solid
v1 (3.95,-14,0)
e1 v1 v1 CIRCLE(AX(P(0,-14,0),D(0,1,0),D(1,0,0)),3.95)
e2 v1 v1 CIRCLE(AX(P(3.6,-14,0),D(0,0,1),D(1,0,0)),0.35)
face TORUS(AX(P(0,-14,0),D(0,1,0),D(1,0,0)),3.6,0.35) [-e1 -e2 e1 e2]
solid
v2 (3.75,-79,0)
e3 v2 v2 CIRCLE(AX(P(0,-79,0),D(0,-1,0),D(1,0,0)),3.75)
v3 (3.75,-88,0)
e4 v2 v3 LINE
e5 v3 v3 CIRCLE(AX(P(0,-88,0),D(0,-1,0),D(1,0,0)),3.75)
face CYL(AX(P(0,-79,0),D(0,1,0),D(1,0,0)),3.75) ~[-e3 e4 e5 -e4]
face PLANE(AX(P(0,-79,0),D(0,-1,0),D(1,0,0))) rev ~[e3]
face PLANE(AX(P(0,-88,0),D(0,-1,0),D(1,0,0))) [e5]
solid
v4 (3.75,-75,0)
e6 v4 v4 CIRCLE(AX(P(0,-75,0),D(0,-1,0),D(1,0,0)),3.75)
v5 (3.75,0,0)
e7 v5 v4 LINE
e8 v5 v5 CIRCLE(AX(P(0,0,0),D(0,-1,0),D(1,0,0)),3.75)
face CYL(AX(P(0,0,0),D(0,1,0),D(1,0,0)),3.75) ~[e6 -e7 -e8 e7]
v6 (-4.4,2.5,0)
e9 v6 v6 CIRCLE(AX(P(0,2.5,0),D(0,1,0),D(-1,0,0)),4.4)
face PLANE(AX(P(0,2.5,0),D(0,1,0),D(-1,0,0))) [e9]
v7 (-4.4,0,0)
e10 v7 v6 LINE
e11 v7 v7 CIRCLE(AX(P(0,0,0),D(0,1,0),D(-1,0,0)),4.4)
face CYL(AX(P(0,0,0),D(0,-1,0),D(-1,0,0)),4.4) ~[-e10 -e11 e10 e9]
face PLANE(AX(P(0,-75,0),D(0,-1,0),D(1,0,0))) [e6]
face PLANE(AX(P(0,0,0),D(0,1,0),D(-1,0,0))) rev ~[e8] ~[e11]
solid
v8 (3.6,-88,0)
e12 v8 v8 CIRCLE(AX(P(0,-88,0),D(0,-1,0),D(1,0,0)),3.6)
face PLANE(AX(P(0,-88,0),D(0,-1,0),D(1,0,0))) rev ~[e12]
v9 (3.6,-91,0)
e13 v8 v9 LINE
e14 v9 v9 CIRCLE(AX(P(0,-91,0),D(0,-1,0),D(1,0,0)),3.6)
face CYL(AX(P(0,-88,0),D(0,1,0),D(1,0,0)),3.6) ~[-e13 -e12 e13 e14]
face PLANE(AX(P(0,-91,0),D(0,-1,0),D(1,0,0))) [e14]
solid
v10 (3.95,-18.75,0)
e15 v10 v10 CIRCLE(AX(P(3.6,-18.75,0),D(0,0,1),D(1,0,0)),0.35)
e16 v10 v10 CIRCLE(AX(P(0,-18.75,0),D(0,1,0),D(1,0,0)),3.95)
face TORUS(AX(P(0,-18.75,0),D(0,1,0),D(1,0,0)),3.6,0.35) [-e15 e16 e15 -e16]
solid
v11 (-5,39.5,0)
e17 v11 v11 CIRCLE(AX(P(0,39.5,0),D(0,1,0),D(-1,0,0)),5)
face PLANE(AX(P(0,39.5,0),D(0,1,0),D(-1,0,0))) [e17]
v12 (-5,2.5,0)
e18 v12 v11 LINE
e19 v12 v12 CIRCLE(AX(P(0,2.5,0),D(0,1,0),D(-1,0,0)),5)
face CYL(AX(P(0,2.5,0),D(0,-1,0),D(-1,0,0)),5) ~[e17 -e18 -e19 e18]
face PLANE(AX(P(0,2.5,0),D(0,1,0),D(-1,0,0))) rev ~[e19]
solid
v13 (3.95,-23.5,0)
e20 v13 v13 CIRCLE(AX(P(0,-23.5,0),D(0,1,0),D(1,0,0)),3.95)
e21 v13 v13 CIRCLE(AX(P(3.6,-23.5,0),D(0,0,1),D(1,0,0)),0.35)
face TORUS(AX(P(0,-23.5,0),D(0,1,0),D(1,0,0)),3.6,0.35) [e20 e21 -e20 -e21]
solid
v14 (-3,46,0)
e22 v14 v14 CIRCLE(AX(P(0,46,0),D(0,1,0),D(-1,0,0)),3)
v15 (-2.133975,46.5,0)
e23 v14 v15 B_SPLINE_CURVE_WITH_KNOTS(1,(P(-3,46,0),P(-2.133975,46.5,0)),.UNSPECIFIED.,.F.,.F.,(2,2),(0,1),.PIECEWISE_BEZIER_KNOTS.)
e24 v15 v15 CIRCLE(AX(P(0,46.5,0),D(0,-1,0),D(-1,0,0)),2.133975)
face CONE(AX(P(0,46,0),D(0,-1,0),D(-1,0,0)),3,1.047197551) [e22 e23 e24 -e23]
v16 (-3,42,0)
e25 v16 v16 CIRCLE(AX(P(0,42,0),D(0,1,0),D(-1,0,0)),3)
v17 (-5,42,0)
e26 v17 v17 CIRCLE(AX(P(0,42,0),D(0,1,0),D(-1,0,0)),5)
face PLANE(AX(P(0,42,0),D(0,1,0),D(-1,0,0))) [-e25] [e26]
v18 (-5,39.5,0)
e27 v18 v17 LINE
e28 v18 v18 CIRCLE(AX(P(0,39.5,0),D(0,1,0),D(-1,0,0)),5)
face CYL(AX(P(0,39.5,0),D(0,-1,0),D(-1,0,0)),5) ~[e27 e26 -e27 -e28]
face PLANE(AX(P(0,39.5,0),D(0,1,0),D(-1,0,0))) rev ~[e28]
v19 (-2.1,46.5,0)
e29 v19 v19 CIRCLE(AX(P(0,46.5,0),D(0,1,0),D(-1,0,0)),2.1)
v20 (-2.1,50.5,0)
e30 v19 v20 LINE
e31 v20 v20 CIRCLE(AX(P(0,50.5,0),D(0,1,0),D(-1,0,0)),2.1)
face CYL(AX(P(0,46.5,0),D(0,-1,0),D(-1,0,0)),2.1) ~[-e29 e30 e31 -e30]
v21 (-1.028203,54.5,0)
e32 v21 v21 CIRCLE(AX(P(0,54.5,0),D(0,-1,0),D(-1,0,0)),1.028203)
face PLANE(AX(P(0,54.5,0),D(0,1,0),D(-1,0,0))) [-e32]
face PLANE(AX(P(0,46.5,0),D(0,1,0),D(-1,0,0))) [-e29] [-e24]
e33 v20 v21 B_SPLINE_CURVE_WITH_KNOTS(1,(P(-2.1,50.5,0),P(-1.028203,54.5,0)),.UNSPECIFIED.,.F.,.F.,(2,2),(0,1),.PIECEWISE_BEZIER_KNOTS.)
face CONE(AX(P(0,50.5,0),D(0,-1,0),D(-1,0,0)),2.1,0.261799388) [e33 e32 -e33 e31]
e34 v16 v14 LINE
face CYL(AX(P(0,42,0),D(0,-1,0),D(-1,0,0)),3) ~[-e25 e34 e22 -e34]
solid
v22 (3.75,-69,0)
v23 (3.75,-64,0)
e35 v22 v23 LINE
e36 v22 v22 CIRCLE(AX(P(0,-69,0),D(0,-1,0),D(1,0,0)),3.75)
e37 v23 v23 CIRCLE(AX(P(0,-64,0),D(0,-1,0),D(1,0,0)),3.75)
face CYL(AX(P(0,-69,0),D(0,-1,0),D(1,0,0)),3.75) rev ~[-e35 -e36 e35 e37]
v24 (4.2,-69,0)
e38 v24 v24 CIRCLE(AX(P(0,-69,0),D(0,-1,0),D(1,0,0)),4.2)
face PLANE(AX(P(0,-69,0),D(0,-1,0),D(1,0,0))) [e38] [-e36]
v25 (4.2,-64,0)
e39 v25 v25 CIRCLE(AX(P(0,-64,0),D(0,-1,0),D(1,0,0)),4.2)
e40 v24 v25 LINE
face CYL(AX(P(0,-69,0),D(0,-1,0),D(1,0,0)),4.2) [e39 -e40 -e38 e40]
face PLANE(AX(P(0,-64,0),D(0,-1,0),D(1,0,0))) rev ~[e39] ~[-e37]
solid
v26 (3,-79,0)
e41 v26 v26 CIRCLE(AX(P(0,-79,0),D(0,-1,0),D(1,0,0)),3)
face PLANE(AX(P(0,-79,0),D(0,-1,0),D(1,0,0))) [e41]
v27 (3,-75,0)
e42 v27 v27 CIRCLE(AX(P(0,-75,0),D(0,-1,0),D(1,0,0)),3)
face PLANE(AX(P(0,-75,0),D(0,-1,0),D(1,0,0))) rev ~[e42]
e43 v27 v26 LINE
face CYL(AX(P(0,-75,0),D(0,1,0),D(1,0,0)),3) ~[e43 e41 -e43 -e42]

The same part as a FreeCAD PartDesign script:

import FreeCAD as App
import Part
import Sketcher

doc = App.newDocument("Part")
body = doc.addObject("PartDesign::Body", "Body")

# Sketch on XZ plane
sketch1 = doc.addObject("Sketcher::SketchObject", "Sketch")
body.addObject(sketch1)
sketch1.AttachmentSupport = (doc.XZ_Plane, [""])
sketch1.MapMode = "FlatFace"
sketch1.addGeometry(Part.Circle(App.Vector(0, 0, 0), App.Vector(0, 0, 1), 3.8), False)
sketch1.addConstraint([
    Sketcher.Constraint("Coincident", 0, 3, -1, 1),
    Sketcher.Constraint("Diameter", 0, 7.5),
])
pad1 = doc.addObject("PartDesign::Pad", "Pad")
body.addObject(pad1)
pad1.Profile = sketch1
pad1.Length = 75

# Sketch on XZ plane
sketch2 = doc.addObject("Sketcher::SketchObject", "Sketch001")
body.addObject(sketch2)
sketch2.AttachmentSupport = (doc.XZ_Plane, [""])
sketch2.MapMode = "FlatFace"
sketch2.addGeometry(Part.Circle(App.Vector(0, 0, 0), App.Vector(0, 0, 1), 4.4), False)
sketch2.addConstraint([
    Sketcher.Constraint("Coincident", 0, 3, -1, 1),
    Sketcher.Constraint("Diameter", 0, 8.8),
])
pad2 = doc.addObject("PartDesign::Pad", "Pad001")
body.addObject(pad2)
pad2.Profile = sketch2
pad2.Length = 2.5
pad2.Reversed = True
body2 = doc.addObject("PartDesign::Body", "Body001")

# Sketch on XZ plane
sketch3 = doc.addObject("Sketcher::SketchObject", "Sketch002")
body2.addObject(sketch3)
sketch3.AttachmentSupport = (doc.getObject("XZ_Plane001"), [""])
sketch3.MapMode = "FlatFace"
sketch3.AttachmentOffset = App.Placement(App.Vector(0, 0, -2.5), App.Rotation())
sketch3.addGeometry(Part.Circle(App.Vector(0, 0, 0), App.Vector(0, 0, 1), 5), False)
sketch3.addConstraint([
    Sketcher.Constraint("Coincident", 0, 3, -1, 1),
    Sketcher.Constraint("Diameter", 0, 10.0),
])
pad3 = doc.addObject("PartDesign::Pad", "Pad002")
body2.addObject(pad3)
pad3.Profile = sketch3
pad3.Length = 37
pad3.Reversed = True
body3 = doc.addObject("PartDesign::Body", "Body002")

# Sketch on XZ plane
sketch4 = doc.addObject("Sketcher::SketchObject", "Sketch003")
body3.addObject(sketch4)
sketch4.AttachmentSupport = (doc.getObject("XZ_Plane002"), [""])
sketch4.MapMode = "FlatFace"
sketch4.AttachmentOffset = App.Placement(App.Vector(0, 0, -39.5), App.Rotation())
sketch4.addGeometry(Part.Circle(App.Vector(0, 0, 0), App.Vector(0, 0, 1), 5), False)
sketch4.addConstraint([
    Sketcher.Constraint("Coincident", 0, 3, -1, 1),
    Sketcher.Constraint("Diameter", 0, 10.0),
])
pad4 = doc.addObject("PartDesign::Pad", "Pad003")
body3.addObject(pad4)
pad4.Profile = sketch4
pad4.Length = 2.5
pad4.Reversed = True

# Sketch on XZ plane
sketch5 = doc.addObject("Sketcher::SketchObject", "Sketch004")
body3.addObject(sketch5)
sketch5.AttachmentSupport = (doc.getObject("XZ_Plane002"), [""])
sketch5.MapMode = "FlatFace"
sketch5.AttachmentOffset = App.Placement(App.Vector(0, 0, -42), App.Rotation())
sketch5.addGeometry(Part.Circle(App.Vector(0, 0, 0), App.Vector(0, 0, 1), 3), False)
sketch5.addConstraint([
    Sketcher.Constraint("Coincident", 0, 3, -1, 1),
    Sketcher.Constraint("Diameter", 0, 6.0),
])
pad5 = doc.addObject("PartDesign::Pad", "Pad004")
body3.addObject(pad5)
pad5.Profile = sketch5
pad5.Length = 4
pad5.Reversed = True

# Sketch on XZ plane
sketch6 = doc.addObject("Sketcher::SketchObject", "Sketch005")
body3.addObject(sketch6)
sketch6.AttachmentSupport = (doc.getObject("XZ_Plane002"), [""])
sketch6.MapMode = "FlatFace"
sketch6.AttachmentOffset = App.Placement(App.Vector(0, 0, -46), App.Rotation())
sketch6.addGeometry(Part.Circle(App.Vector(0, 0, 0), App.Vector(0, 0, 1), 3), False)
sketch6.addConstraint([
    Sketcher.Constraint("Coincident", 0, 3, -1, 1),
    Sketcher.Constraint("Diameter", 0, 6.0),
])
pad6 = doc.addObject("PartDesign::Pad", "Pad005")
body3.addObject(pad6)
pad6.Profile = sketch6
pad6.Length = 0.5
pad6.Reversed = True
pad6.TaperAngle = -60

# Sketch on XZ plane
sketch7 = doc.addObject("Sketcher::SketchObject", "Sketch006")
body3.addObject(sketch7)
sketch7.AttachmentSupport = (doc.getObject("XZ_Plane002"), [""])
sketch7.MapMode = "FlatFace"
sketch7.AttachmentOffset = App.Placement(App.Vector(0, 0, -46.5), App.Rotation())
sketch7.addGeometry(Part.Circle(App.Vector(0, 0, 0), App.Vector(0, 0, 1), 2.1), False)
sketch7.addConstraint([
    Sketcher.Constraint("Coincident", 0, 3, -1, 1),
    Sketcher.Constraint("Diameter", 0, 4.2),
])
pad7 = doc.addObject("PartDesign::Pad", "Pad006")
body3.addObject(pad7)
pad7.Profile = sketch7
pad7.Length = 4
pad7.Reversed = True

# Sketch on XZ plane
sketch8 = doc.addObject("Sketcher::SketchObject", "Sketch007")
body3.addObject(sketch8)
sketch8.AttachmentSupport = (doc.getObject("XZ_Plane002"), [""])
sketch8.MapMode = "FlatFace"
sketch8.AttachmentOffset = App.Placement(App.Vector(0, 0, -50.5), App.Rotation())
sketch8.addGeometry(Part.Circle(App.Vector(0, 0, 0), App.Vector(0, 0, 1), 2.1), False)
sketch8.addConstraint([
    Sketcher.Constraint("Coincident", 0, 3, -1, 1),
    Sketcher.Constraint("Diameter", 0, 4.2),
])
pad8 = doc.addObject("PartDesign::Pad", "Pad007")
body3.addObject(pad8)
pad8.Profile = sketch8
pad8.Length = 4
pad8.Reversed = True
pad8.TaperAngle = -15
body4 = doc.addObject("PartDesign::Body", "Body003")

# Sketch on XZ plane
sketch9 = doc.addObject("Sketcher::SketchObject", "Sketch008")
body4.addObject(sketch9)
sketch9.AttachmentSupport = (doc.getObject("XZ_Plane003"), [""])
sketch9.MapMode = "FlatFace"
sketch9.AttachmentOffset = App.Placement(App.Vector(0, 0, 75), App.Rotation())
sketch9.addGeometry(Part.Circle(App.Vector(0, 0, 0), App.Vector(0, 0, 1), 3), False)
sketch9.addConstraint([
    Sketcher.Constraint("Coincident", 0, 3, -1, 1),
    Sketcher.Constraint("Diameter", 0, 6.0),
])
pad9 = doc.addObject("PartDesign::Pad", "Pad008")
body4.addObject(pad9)
pad9.Profile = sketch9
pad9.Length = 4
body5 = doc.addObject("PartDesign::Body", "Body004")

# Sketch on XZ plane
sketch10 = doc.addObject("Sketcher::SketchObject", "Sketch009")
body5.addObject(sketch10)
sketch10.AttachmentSupport = (doc.getObject("XZ_Plane004"), [""])
sketch10.MapMode = "FlatFace"
sketch10.AttachmentOffset = App.Placement(App.Vector(0, 0, 79), App.Rotation())
sketch10.addGeometry(Part.Circle(App.Vector(0, 0, 0), App.Vector(0, 0, 1), 3.8), False)
sketch10.addConstraint([
    Sketcher.Constraint("Coincident", 0, 3, -1, 1),
    Sketcher.Constraint("Diameter", 0, 7.5),
])
pad10 = doc.addObject("PartDesign::Pad", "Pad009")
body5.addObject(pad10)
pad10.Profile = sketch10
pad10.Length = 9
body6 = doc.addObject("PartDesign::Body", "Body005")

# Sketch on XZ plane
sketch11 = doc.addObject("Sketcher::SketchObject", "Sketch010")
body6.addObject(sketch11)
sketch11.AttachmentSupport = (doc.getObject("XZ_Plane005"), [""])
sketch11.MapMode = "FlatFace"
sketch11.AttachmentOffset = App.Placement(App.Vector(0, 0, 88), App.Rotation())
sketch11.addGeometry(Part.Circle(App.Vector(0, 0, 0), App.Vector(0, 0, 1), 3.6), False)
sketch11.addConstraint([
    Sketcher.Constraint("Coincident", 0, 3, -1, 1),
    Sketcher.Constraint("Diameter", 0, 7.2),
])
pad11 = doc.addObject("PartDesign::Pad", "Pad010")
body6.addObject(pad11)
pad11.Profile = sketch11
pad11.Length = 3
body7 = doc.addObject("PartDesign::Body", "Body006")

# Sketch on XY plane
sketch12 = doc.addObject("Sketcher::SketchObject", "Sketch011")
body7.addObject(sketch12)
sketch12.AttachmentSupport = (doc.getObject("XY_Plane006"), [""])
sketch12.MapMode = "FlatFace"
sketch12.addGeometry(Part.Circle(App.Vector(3.6, -14, 0), App.Vector(0, 0, 1), 0.35), False)
sketch12.addConstraint([
    Sketcher.Constraint("Diameter", 0, 0.7),
    Sketcher.Constraint("DistanceY", 0, 3, -1, 1, 14.0),
    Sketcher.Constraint("DistanceX", -1, 1, 0, 3, 3.6),
])
revolution = doc.addObject("PartDesign::Revolution", "Revolution")
body7.addObject(revolution)
revolution.Profile = sketch12
revolution.ReferenceAxis = (sketch12, ["V_Axis"])
revolution.Angle = 360
body8 = doc.addObject("PartDesign::Body", "Body007")

# Sketch on XY plane
sketch13 = doc.addObject("Sketcher::SketchObject", "Sketch012")
body8.addObject(sketch13)
sketch13.AttachmentSupport = (doc.getObject("XY_Plane007"), [""])
sketch13.MapMode = "FlatFace"
sketch13.addGeometry(Part.Circle(App.Vector(3.6, -18.75, 0), App.Vector(0, 0, 1), 0.35), False)
sketch13.addConstraint([
    Sketcher.Constraint("Diameter", 0, 0.7),
    Sketcher.Constraint("DistanceX", -1, 1, 0, 3, 3.6),
    Sketcher.Constraint("DistanceY", 0, 3, -1, 1, 18.75),
])
revolution2 = doc.addObject("PartDesign::Revolution", "Revolution001")
body8.addObject(revolution2)
revolution2.Profile = sketch13
revolution2.ReferenceAxis = (sketch13, ["V_Axis"])
revolution2.Angle = 360
body9 = doc.addObject("PartDesign::Body", "Body008")

# Sketch on XY plane
sketch14 = doc.addObject("Sketcher::SketchObject", "Sketch013")
body9.addObject(sketch14)
sketch14.AttachmentSupport = (doc.getObject("XY_Plane008"), [""])
sketch14.MapMode = "FlatFace"
sketch14.addGeometry(Part.Circle(App.Vector(3.6, -23.5, 0), App.Vector(0, 0, 1), 0.35), False)
sketch14.addConstraint([
    Sketcher.Constraint("Diameter", 0, 0.7),
    Sketcher.Constraint("DistanceX", -1, 1, 0, 3, 3.6),
    Sketcher.Constraint("DistanceY", 0, 3, -1, 1, 23.5),
])
revolution3 = doc.addObject("PartDesign::Revolution", "Revolution002")
body9.addObject(revolution3)
revolution3.Profile = sketch14
revolution3.ReferenceAxis = (sketch14, ["V_Axis"])
revolution3.Angle = 360
body10 = doc.addObject("PartDesign::Body", "Body009")

# Sketch on XZ plane
sketch15 = doc.addObject("Sketcher::SketchObject", "Sketch014")
body10.addObject(sketch15)
sketch15.AttachmentSupport = (doc.getObject("XZ_Plane009"), [""])
sketch15.MapMode = "FlatFace"
sketch15.AttachmentOffset = App.Placement(App.Vector(0, 0, 69), App.Rotation())
sketch15.addGeometry([
    Part.Circle(App.Vector(0, 0, 0), App.Vector(0, 0, 1), 4.2),
    Part.Circle(App.Vector(0, 0, 0), App.Vector(0, 0, 1), 3.8),
], False)
sketch15.addConstraint([
    Sketcher.Constraint("Coincident", 0, 3, -1, 1),
    Sketcher.Constraint("Coincident", 1, 3, -1, 1),
    Sketcher.Constraint("Diameter", 0, 8.4),
    Sketcher.Constraint("Diameter", 1, 7.5),
])
pad12 = doc.addObject("PartDesign::Pad", "Pad011")
body10.addObject(pad12)
pad12.Profile = sketch15
pad12.Length = 5
pad12.Reversed = True

doc.recompute()
